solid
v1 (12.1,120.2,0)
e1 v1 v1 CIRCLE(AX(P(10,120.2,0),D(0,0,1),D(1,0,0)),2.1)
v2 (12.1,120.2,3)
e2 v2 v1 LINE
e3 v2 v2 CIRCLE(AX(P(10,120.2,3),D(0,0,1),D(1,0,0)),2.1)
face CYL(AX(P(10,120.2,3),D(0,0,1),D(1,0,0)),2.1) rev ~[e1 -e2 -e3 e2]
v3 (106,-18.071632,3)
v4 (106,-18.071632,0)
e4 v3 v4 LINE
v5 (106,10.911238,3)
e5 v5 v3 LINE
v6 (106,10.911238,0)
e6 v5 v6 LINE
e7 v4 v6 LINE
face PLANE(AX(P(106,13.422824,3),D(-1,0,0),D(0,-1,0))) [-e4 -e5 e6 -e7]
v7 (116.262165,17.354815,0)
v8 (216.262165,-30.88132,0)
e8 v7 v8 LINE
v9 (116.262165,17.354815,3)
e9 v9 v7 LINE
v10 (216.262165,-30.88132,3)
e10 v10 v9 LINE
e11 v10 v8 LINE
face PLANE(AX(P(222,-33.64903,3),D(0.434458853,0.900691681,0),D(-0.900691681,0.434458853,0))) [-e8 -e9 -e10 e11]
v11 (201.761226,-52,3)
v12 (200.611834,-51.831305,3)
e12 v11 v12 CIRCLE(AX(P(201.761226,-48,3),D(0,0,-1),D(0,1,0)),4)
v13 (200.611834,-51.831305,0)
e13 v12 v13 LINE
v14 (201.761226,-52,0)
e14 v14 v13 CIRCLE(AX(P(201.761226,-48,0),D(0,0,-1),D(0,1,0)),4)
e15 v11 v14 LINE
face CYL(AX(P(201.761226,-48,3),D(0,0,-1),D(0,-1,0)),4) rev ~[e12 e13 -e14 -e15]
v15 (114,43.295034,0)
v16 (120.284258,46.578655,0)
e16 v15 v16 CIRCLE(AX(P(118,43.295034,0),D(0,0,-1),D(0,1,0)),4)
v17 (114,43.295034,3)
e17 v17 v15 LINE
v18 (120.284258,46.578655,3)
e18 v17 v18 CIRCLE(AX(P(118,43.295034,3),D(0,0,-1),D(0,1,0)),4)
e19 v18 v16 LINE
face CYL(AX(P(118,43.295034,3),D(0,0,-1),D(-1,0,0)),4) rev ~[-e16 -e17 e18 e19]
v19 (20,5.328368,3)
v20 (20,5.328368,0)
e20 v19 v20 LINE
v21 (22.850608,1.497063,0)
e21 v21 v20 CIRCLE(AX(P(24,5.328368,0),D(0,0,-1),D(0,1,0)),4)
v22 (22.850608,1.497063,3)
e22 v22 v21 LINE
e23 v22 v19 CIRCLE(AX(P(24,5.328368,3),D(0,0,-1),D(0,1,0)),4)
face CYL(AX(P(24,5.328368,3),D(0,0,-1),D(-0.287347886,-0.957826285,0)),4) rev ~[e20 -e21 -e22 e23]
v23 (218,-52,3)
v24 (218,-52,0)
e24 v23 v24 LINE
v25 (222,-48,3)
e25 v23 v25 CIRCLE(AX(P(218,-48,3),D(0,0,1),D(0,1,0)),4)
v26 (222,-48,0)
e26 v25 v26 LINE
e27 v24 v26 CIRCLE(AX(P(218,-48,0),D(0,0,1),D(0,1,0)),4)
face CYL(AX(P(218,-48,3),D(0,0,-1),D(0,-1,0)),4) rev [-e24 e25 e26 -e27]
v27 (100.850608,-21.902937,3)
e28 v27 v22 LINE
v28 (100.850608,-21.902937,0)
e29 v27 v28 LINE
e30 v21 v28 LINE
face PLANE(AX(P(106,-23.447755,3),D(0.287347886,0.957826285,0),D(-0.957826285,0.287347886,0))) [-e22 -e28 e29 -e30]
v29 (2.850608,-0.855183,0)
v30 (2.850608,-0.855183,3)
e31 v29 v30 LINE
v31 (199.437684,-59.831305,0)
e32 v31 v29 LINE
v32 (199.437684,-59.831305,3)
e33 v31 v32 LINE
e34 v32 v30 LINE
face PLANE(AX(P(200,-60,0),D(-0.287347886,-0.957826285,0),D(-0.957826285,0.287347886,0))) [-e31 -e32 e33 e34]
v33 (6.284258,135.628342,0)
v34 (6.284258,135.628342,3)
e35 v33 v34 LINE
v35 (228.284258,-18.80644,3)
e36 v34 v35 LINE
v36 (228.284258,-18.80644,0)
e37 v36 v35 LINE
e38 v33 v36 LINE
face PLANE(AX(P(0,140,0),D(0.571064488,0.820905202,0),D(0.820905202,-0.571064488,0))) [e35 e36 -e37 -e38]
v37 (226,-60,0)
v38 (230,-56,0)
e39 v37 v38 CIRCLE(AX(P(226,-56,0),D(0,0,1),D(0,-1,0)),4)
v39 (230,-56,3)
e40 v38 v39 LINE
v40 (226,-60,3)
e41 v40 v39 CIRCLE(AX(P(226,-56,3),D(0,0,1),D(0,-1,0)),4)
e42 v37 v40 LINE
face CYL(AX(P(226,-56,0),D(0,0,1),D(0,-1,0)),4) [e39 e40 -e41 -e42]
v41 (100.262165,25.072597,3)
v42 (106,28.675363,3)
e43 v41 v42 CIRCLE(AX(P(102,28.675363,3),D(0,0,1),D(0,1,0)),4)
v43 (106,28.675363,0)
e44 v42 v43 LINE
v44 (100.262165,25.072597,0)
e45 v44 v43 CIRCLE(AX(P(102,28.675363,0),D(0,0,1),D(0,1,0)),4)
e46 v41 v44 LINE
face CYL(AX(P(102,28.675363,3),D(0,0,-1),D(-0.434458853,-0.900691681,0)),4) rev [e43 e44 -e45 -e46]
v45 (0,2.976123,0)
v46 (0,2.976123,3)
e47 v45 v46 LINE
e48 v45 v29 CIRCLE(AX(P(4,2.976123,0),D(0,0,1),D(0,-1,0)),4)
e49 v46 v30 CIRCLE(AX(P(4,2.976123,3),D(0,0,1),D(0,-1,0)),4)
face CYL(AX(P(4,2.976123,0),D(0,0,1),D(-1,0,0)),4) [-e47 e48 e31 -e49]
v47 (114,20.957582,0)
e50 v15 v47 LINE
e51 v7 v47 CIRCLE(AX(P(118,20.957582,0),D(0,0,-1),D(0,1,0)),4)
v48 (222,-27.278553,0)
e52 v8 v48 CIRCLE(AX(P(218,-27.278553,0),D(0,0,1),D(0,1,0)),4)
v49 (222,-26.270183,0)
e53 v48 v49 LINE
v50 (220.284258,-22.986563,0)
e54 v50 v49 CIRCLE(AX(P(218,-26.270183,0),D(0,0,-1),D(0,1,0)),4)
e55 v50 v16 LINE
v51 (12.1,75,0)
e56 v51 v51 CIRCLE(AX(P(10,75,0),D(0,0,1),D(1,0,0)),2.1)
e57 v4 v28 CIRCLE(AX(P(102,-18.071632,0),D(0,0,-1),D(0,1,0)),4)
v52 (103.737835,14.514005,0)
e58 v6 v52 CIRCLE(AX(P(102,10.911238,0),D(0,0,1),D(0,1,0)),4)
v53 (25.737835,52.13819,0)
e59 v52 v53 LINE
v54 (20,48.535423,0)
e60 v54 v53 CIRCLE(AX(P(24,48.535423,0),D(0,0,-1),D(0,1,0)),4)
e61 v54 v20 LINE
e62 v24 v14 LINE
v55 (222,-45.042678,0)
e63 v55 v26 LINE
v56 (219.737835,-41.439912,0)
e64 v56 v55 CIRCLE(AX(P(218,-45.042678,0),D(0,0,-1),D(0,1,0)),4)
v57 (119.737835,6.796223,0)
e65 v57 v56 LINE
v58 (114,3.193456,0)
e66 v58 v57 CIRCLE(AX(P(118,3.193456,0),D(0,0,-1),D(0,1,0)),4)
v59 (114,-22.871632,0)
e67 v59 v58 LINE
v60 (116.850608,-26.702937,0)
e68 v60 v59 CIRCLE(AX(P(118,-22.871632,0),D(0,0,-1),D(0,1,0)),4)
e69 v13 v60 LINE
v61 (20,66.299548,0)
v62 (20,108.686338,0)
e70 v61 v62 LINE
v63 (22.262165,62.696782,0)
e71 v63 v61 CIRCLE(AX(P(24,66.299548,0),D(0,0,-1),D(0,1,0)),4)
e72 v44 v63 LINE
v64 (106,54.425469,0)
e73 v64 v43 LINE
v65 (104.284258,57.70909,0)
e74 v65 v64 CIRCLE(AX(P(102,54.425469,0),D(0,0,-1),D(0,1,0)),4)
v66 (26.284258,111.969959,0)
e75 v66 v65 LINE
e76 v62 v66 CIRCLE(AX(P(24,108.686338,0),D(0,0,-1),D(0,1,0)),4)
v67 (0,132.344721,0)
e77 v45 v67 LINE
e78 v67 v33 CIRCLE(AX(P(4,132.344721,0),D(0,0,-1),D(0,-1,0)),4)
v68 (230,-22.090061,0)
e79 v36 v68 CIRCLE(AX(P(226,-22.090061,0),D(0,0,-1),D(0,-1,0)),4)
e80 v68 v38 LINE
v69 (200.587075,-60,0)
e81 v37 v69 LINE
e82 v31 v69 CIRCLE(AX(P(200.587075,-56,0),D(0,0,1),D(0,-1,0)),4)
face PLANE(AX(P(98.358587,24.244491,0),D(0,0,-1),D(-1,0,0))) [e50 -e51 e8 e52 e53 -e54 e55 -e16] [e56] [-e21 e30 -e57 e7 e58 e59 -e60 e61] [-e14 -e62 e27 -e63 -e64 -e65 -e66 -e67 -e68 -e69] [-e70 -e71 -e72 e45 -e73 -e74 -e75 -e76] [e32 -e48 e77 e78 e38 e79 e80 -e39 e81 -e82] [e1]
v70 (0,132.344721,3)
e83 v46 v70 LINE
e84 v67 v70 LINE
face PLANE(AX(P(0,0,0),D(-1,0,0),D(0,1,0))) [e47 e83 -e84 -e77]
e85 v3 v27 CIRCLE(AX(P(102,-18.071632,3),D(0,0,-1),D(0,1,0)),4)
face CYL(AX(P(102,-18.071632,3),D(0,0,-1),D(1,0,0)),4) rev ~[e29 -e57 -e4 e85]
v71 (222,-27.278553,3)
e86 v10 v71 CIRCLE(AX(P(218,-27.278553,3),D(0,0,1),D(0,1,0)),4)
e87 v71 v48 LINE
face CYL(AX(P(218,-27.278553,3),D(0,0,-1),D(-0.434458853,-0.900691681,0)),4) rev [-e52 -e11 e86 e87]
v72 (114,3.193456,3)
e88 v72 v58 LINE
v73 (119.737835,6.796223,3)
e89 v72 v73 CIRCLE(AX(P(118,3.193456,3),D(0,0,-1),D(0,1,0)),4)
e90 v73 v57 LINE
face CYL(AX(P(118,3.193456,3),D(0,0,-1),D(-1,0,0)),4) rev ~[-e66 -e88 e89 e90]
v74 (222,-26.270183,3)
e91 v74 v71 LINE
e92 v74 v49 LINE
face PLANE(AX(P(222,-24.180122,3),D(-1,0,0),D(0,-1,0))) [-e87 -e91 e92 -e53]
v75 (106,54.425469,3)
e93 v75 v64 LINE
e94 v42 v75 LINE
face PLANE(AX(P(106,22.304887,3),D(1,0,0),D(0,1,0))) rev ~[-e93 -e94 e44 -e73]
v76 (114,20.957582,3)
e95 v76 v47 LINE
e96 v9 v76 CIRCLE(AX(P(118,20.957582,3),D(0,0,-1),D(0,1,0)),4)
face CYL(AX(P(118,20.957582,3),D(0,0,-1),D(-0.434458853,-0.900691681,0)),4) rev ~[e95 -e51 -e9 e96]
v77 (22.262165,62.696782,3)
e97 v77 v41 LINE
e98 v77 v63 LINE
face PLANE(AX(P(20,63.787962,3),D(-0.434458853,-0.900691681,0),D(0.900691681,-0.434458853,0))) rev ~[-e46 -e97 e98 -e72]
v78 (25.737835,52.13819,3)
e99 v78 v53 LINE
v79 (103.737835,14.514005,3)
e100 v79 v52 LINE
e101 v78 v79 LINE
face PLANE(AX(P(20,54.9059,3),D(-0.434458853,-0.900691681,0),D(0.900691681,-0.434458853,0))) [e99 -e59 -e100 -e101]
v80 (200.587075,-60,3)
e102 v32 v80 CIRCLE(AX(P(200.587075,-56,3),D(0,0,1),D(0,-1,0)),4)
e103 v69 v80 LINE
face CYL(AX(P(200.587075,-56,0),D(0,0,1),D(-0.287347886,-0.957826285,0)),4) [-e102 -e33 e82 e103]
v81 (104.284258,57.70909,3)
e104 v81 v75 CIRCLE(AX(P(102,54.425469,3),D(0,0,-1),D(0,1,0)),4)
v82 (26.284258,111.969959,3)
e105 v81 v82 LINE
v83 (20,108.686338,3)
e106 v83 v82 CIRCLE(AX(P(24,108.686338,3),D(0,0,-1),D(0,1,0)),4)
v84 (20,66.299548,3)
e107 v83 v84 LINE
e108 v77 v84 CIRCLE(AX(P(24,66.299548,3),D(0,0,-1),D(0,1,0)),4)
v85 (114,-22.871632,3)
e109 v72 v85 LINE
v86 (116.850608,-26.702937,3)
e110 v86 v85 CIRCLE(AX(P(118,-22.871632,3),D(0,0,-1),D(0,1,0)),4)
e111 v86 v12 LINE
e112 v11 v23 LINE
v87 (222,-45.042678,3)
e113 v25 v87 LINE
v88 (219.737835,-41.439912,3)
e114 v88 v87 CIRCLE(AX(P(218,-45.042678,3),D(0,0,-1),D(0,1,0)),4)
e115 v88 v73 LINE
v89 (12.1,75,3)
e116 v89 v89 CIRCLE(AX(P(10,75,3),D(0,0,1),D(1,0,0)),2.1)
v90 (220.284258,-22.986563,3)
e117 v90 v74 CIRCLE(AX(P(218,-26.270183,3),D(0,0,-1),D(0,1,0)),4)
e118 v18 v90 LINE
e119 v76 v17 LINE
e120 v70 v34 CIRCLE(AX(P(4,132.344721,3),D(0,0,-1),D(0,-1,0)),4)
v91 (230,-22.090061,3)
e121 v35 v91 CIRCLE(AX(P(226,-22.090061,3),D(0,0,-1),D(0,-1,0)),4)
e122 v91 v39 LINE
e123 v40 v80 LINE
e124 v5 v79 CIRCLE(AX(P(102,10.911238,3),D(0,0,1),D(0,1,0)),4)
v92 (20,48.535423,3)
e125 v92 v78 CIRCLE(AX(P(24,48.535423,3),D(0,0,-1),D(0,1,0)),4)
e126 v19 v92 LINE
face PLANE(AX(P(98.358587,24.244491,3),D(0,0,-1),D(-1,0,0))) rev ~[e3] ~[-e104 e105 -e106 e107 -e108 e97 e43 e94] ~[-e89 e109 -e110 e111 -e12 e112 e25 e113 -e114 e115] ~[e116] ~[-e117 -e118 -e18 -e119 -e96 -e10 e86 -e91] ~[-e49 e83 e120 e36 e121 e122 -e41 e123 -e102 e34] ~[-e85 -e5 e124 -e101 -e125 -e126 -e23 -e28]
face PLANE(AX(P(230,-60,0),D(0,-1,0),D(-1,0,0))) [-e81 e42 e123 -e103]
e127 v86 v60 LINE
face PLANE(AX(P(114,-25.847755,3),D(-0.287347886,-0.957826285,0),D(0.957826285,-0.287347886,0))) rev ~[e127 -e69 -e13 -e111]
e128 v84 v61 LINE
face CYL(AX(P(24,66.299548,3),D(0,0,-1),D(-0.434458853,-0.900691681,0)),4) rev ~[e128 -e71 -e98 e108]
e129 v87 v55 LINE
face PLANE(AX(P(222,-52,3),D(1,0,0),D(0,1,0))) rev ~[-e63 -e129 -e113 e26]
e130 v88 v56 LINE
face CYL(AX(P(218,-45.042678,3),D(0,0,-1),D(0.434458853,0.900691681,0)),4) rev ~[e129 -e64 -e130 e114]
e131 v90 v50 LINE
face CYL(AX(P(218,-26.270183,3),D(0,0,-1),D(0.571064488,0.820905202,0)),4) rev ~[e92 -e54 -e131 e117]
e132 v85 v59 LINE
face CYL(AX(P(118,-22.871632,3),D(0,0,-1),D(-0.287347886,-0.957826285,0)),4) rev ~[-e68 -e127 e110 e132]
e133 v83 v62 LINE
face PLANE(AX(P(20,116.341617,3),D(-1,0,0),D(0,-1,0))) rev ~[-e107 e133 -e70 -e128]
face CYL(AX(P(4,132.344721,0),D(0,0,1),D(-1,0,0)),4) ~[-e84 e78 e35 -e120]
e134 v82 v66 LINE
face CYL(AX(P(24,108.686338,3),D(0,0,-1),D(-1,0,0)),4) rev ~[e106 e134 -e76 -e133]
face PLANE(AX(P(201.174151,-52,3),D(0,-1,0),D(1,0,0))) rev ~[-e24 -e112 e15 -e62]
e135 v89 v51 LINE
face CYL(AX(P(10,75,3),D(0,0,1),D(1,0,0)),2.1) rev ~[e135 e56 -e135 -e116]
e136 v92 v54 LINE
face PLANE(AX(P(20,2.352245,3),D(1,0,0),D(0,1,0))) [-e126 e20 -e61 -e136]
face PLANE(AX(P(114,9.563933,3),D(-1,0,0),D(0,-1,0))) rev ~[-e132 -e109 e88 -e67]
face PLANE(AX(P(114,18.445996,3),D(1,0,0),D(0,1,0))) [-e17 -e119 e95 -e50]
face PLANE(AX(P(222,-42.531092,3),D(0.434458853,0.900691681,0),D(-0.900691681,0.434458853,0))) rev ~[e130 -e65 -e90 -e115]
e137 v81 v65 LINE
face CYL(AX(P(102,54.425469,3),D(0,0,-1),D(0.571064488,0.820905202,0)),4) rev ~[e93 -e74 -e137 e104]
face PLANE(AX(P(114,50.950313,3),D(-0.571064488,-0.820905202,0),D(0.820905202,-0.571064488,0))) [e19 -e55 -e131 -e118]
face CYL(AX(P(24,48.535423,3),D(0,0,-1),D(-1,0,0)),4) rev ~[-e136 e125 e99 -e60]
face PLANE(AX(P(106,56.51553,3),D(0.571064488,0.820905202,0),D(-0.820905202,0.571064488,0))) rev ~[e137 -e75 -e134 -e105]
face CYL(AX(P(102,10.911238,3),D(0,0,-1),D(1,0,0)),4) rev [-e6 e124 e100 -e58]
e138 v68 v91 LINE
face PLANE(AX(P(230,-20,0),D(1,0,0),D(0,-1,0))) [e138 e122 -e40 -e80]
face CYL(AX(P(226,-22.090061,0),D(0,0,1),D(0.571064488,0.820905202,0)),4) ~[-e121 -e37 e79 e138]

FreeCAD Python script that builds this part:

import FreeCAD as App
import Part
import Sketcher

V = App.Vector
Q = App.Units.Quantity


def edges_at(feature, points):
    """Names of the edges that pass closest to the given points."""
    edges = feature.Shape.Edges
    near = lambda p: min(range(len(edges)), key=lambda i: edges[i].distToShape(Part.Vertex(*p))[0])
    return sorted({f"Edge{near(p) + 1}" for p in points})


def add_polygon(sketch, points):
    """Adds a closed chain of lines whose ends are joined by coincident constraints."""
    first, n = sketch.GeometryCount, len(points)
    for a, b in zip(points, points[1:] + points[:1]):
        sketch.addGeometry(Part.LineSegment(App.Vector(*a, 0), App.Vector(*b, 0)), False)
    for i in range(n):
        sketch.addConstraint(Sketcher.Constraint("Coincident", first + i, 2, first + (i + 1) % n, 1))

doc = App.newDocument("Part")
params = doc.addObject("Spreadsheet::Sheet", "Params")
for row, (alias, value) in enumerate([
    ("sketch1_width", "30 mm"),
    ("sketch1_height", "140 mm"),
    ("sketch1_height2", "40 mm"),
    ("pad1_length", "3 mm"),
    ("sketch2_diameter", "4.2 mm"),
    ("pocket1_length", "39 mm"),
    ("pocket2_length", "10 mm"),
    ("fillet_radius", "4 mm"),
    ("fillet2_radius", "4 mm"),
], start=1):
    params.set(f"A{row}", alias)
    params.set(f"B{row}", "=" + value)
    params.setAlias(f"B{row}", alias)

body = doc.addObject("PartDesign::Body", "Body")

# Sketch on XY plane
sketch1 = body.newObject("Sketcher::SketchObject", "Sketch")
sketch1.AttachmentSupport = (doc.getObject("XY_Plane"), [""])
sketch1.MapMode = "FlatFace"
add_polygon(sketch1, [(0, 140), (0, 0), (200, -60), (230, -60), (230, -20)])  # lines 0-4
sketch1.addConstraint([
    Sketcher.Constraint("Vertical", 0),
    Sketcher.Constraint("Horizontal", 2),
    Sketcher.Constraint("Vertical", 3),
    Sketcher.Constraint("Coincident", 0, 2, -1, 1),
    Sketcher.Constraint("DistanceX", 2, 1, 2, 2, Q("30 mm")),
    Sketcher.Constraint("DistanceY", 0, 2, 0, 1, Q("140 mm")),
    Sketcher.Constraint("DistanceY", 3, 1, 3, 2, Q("40 mm")),
    Sketcher.Constraint("DistanceX", -1, 1, 1, 2, Q("200 mm")),
    Sketcher.Constraint("DistanceY", 1, 2, -1, 1, Q("60 mm")),
])
sketch1.setExpression("Constraints[9]", "Params.sketch1_width")
sketch1.setExpression("Constraints[10]", "Params.sketch1_height")
sketch1.setExpression("Constraints[11]", "Params.sketch1_height2")
pad1 = body.newObject("PartDesign::Pad", "Pad")
pad1.Profile = sketch1
pad1.setExpression("Length", "Params.pad1_length")

# Sketch on XY plane
sketch2 = body.newObject("Sketcher::SketchObject", "Sketch001")
sketch2.AttachmentSupport = (doc.getObject("XY_Plane"), [""])
sketch2.MapMode = "FlatFace"
sketch2.AttachmentOffset = App.Placement(V(0, 0, 3), App.Rotation())
sketch2.addGeometry([
    Part.Circle(V(10, 75, 0), V(0, 0, 1), 2.1),
    Part.Circle(V(10, 120.2, 0), V(0, 0, 1), 2.1),
], False)
sketch2.addConstraint([
    Sketcher.Constraint("Equal", 0, 1),
    Sketcher.Constraint("Vertical", 0, 3, 1, 3),
    Sketcher.Constraint("Diameter", 0, Q("4.2 mm")),
    Sketcher.Constraint("DistanceX", -1, 1, 0, 3, Q("10 mm")),
    Sketcher.Constraint("DistanceY", -1, 1, 0, 3, Q("75 mm")),
    Sketcher.Constraint("DistanceY", -1, 1, 1, 3, Q("120.2 mm")),
])
sketch2.setExpression("Constraints[2]", "Params.sketch2_diameter")
pocket1 = body.newObject("PartDesign::Pocket", "Pocket")
pocket1.Profile = sketch2
pocket1.setExpression("Length", "Params.pocket1_length")

# Sketch on XY plane
sketch3 = body.newObject("Sketcher::SketchObject", "Sketch002")
sketch3.AttachmentSupport = (doc.getObject("XY_Plane"), [""])
sketch3.MapMode = "FlatFace"
sketch3.AttachmentOffset = App.Placement(V(0, 0, 3), App.Rotation())
add_polygon(sketch3, [(222, -34), (222, -24), (114, 51), (114, 18)])  # lines 0-3
add_polygon(sketch3, [(20, 64), (106, 22), (106, 57), (20, 116)])  # lines 4-7
add_polygon(sketch3, [(106, 13), (20, 55), (20, 2), (106, -23)])  # lines 8-11
add_polygon(sketch3, [(201, -52), (222, -52), (222, -43), (114, 10), (114, -26)])  # lines 12-16
sketch3.addConstraint([
    Sketcher.Constraint("Vertical", 0),
    Sketcher.Constraint("Vertical", 2),
    Sketcher.Constraint("Vertical", 5),
    Sketcher.Constraint("Vertical", 7),
    Sketcher.Constraint("Vertical", 9),
    Sketcher.Constraint("Vertical", 11),
    Sketcher.Constraint("Horizontal", 12),
    Sketcher.Constraint("Vertical", 13),
    Sketcher.Constraint("Vertical", 15),
    Sketcher.Constraint("Parallel", 3, 4),
    Sketcher.Constraint("Parallel", 1, 6),
    Sketcher.Constraint("Parallel", 4, 8),
    Sketcher.Constraint("Parallel", 8, 14),
    Sketcher.Constraint("Parallel", 10, 16),
    Sketcher.Constraint("Vertical", 7, 2, 8, 2),
    Sketcher.Constraint("Vertical", 5, 2, 10, 2),
    Sketcher.Constraint("Vertical", 3, 2, 12, 2),
    Sketcher.Constraint("Vertical", 2, 2, 14, 2),
    Sketcher.Constraint("Equal", 7, 9),
    Sketcher.Constraint("Equal", 0, 13),
    Sketcher.Constraint("DistanceX", -1, 1, 0, 2, Q("222 mm")),
    Sketcher.Constraint("DistanceX", -1, 1, 1, 2, Q("114 mm")),
    Sketcher.Constraint("DistanceX", -1, 1, 4, 2, Q("106 mm")),
    Sketcher.Constraint("DistanceX", -1, 1, 6, 2, Q("20 mm")),
    Sketcher.Constraint("DistanceY", 12, 2, -1, 1, Q("52 mm")),
    Sketcher.Constraint("DistanceY", 10, 2, 9, 2, Q("25.8 mm")),
    Sketcher.Constraint("DistanceY", 15, 2, 10, 2, Q("2.4 mm")),
    Sketcher.Constraint("Distance", 6, Q("104.762401 mm")),
    Sketcher.Constraint("DistanceX", 12, 1, 12, 2, Q("20.825849 mm")),
    Sketcher.Constraint("DistanceY", 11, 1, 11, 2, Q("36.870579 mm")),
    Sketcher.Constraint("DistanceY", -1, 1, 8, 2, Q("54.9059 mm")),
    Sketcher.Constraint("DistanceY", 0, 1, 0, 2, Q("9.468908 mm")),
    Sketcher.Constraint("DistanceY", 3, 2, -1, 1, Q("33.64903 mm")),
    Sketcher.Constraint("DistanceY", -1, 1, 5, 2, Q("56.51553 mm")),
])
pocket2 = body.newObject("PartDesign::Pocket", "Pocket001")
pocket2.Profile = sketch3
pocket2.setExpression("Length", "Params.pocket2_length")
doc.recompute()

fillet = body.newObject("PartDesign::Fillet", "Fillet")
fillet.Base = (pocket2, edges_at(pocket2, [
    (0, 0, 1.5),
    (0, 140, 1.5),
    (230, -20, 1.5),
    (230, -60, 1.5),
    (200, -60, 1.5),
]))
fillet.setExpression("Radius", "Params.fillet_radius")
doc.recompute()

fillet2 = body.newObject("PartDesign::Fillet", "Fillet001")
fillet2.Base = (fillet, edges_at(fillet, [
    (20, 2.352, 1.5),
    (20, 54.906, 1.5),
    (106, 13.423, 1.5),
    (106, -23.448, 1.5),
    (114, 50.95, 1.5),
    (222, -24.18, 1.5),
    (222, -33.649, 1.5),
    (114, 18.446, 1.5),
    (222, -42.531, 1.5),
    (222, -52, 1.5),
    (201.174, -52, 1.5),
    (114, -25.848, 1.5),
    (114, 9.564, 1.5),
    (20, 116.342, 1.5),
    (106, 56.516, 1.5),
    (106, 22.305, 1.5),
    (20, 63.788, 1.5),
]))
fillet2.setExpression("Radius", "Params.fillet2_radius")

doc.recompute()
